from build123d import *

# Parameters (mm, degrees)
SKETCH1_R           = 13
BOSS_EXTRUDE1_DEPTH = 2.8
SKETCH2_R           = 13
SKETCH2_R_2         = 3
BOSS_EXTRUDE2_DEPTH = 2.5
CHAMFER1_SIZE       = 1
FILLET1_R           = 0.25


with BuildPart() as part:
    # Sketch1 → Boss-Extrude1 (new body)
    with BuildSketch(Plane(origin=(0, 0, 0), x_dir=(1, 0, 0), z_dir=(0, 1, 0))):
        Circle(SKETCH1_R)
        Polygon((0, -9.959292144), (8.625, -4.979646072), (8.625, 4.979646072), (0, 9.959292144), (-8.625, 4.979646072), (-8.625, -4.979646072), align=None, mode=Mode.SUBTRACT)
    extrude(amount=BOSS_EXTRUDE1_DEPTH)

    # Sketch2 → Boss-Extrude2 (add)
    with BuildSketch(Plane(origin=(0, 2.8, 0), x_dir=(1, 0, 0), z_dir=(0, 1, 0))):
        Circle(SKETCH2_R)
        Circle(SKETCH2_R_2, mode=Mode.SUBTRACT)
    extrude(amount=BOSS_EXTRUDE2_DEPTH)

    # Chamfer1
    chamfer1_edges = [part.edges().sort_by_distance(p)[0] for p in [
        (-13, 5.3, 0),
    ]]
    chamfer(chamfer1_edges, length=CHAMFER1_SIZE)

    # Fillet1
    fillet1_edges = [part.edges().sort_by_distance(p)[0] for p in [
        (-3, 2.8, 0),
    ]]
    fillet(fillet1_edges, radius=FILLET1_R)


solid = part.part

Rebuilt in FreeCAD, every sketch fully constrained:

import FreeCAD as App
import Part
import Sketcher
from FreeCAD import Vector
Q = App.Units.Quantity


def edges_at(feature, points):
    """Names of the edges that pass closest to the given points."""
    edges = feature.Shape.Edges
    near = lambda p: min(range(len(edges)), key=lambda i: edges[i].distToShape(Part.Vertex(*p))[0])
    return sorted({f"Edge{near(p) + 1}" for p in points})

doc = App.newDocument("Part")
body = doc.addObject("PartDesign::Body", "Body")

sketch1 = doc.addObject("Sketcher::SketchObject", "Sketch")
body.addObject(sketch1)
sketch1.AttachmentSupport = (doc.XZ_Plane, [""])
sketch1.MapMode = "FlatFace"
sketch1.addGeometry([
    Part.Circle(Vector(0, 0, 0), Vector(0, 0, 1), 13),
    Part.LineSegment(Vector(8.625, 4.979646, 0), Vector(0, 9.959292, 0)),
    Part.LineSegment(Vector(0, 9.959292, 0), Vector(-8.625, 4.979646, 0)),
    Part.LineSegment(Vector(-8.625, 4.979646, 0), Vector(-8.625, -4.979646, 0)),
    Part.LineSegment(Vector(-8.625, -4.979646, 0), Vector(0, -9.959292, 0)),
    Part.LineSegment(Vector(0, -9.959292, 0), Vector(8.625, -4.979646, 0)),
    Part.LineSegment(Vector(8.625, -4.979646, 0), Vector(8.625, 4.979646, 0)),
], False)
sketch1.addConstraint([
    Sketcher.Constraint("Coincident", 1, 2, 2, 1),
    Sketcher.Constraint("Coincident", 2, 2, 3, 1),
    Sketcher.Constraint("Coincident", 3, 2, 4, 1),
    Sketcher.Constraint("Coincident", 4, 2, 5, 1),
    Sketcher.Constraint("Coincident", 5, 2, 6, 1),
    Sketcher.Constraint("Coincident", 6, 2, 1, 1),
    Sketcher.Constraint("Vertical", 3),
    Sketcher.Constraint("Vertical", 6),
    Sketcher.Constraint("Coincident", 0, 3, -1, 1),
    Sketcher.Constraint("Symmetric", 1, 2, 4, 2, -1, 1),
    Sketcher.Constraint("Symmetric", 2, 2, 5, 2, -1, 1),
    Sketcher.Constraint("PointOnObject", 1, 2, -2),
    Sketcher.Constraint("Parallel", 1, 4),
    Sketcher.Constraint("Horizontal", 3, 2, 5, 2),
    Sketcher.Constraint("Diameter", 0, 26.0),
    Sketcher.Constraint("Angle", 1, Q("150 deg")),
    Sketcher.Constraint("DistanceX", 3, 2, 5, 2, 17.25),
    Sketcher.Constraint("DistanceY", 3, 2, 3, 1, 9.959292),
])
pad1 = doc.addObject("PartDesign::Pad", "Pad")
body.addObject(pad1)
pad1.Profile = sketch1
pad1.Length = 2.8
pad1.Reversed = True

sketch2 = doc.addObject("Sketcher::SketchObject", "Sketch001")
body.addObject(sketch2)
sketch2.AttachmentSupport = (doc.XZ_Plane, [""])
sketch2.MapMode = "FlatFace"
sketch2.AttachmentOffset = App.Placement(Vector(0, 0, -2.8), App.Rotation())
sketch2.addGeometry([
    Part.Circle(Vector(0, 0, 0), Vector(0, 0, 1), 13),
    Part.Circle(Vector(0, 0, 0), Vector(0, 0, 1), 3),
], False)
sketch2.addConstraint([
    Sketcher.Constraint("Coincident", 0, 3, -1, 1),
    Sketcher.Constraint("Coincident", 1, 3, -1, 1),
    Sketcher.Constraint("Diameter", 0, 26.0),
    Sketcher.Constraint("Diameter", 1, 6.0),
])
pad2 = doc.addObject("PartDesign::Pad", "Pad001")
body.addObject(pad2)
pad2.Profile = sketch2
pad2.Length = 2.5
pad2.Reversed = True
doc.recompute()

chamfer = doc.addObject("PartDesign::Chamfer", "Chamfer")
body.addObject(chamfer)
chamfer.Base = (pad2, edges_at(pad2, [(-13, 5.3, 0)]))
chamfer.Size = 1
doc.recompute()

fillet = doc.addObject("PartDesign::Fillet", "Fillet")
body.addObject(fillet)
fillet.Base = (chamfer, edges_at(chamfer, [(-3, 2.8, 0)]))
fillet.Radius = 0.25

doc.recompute()
